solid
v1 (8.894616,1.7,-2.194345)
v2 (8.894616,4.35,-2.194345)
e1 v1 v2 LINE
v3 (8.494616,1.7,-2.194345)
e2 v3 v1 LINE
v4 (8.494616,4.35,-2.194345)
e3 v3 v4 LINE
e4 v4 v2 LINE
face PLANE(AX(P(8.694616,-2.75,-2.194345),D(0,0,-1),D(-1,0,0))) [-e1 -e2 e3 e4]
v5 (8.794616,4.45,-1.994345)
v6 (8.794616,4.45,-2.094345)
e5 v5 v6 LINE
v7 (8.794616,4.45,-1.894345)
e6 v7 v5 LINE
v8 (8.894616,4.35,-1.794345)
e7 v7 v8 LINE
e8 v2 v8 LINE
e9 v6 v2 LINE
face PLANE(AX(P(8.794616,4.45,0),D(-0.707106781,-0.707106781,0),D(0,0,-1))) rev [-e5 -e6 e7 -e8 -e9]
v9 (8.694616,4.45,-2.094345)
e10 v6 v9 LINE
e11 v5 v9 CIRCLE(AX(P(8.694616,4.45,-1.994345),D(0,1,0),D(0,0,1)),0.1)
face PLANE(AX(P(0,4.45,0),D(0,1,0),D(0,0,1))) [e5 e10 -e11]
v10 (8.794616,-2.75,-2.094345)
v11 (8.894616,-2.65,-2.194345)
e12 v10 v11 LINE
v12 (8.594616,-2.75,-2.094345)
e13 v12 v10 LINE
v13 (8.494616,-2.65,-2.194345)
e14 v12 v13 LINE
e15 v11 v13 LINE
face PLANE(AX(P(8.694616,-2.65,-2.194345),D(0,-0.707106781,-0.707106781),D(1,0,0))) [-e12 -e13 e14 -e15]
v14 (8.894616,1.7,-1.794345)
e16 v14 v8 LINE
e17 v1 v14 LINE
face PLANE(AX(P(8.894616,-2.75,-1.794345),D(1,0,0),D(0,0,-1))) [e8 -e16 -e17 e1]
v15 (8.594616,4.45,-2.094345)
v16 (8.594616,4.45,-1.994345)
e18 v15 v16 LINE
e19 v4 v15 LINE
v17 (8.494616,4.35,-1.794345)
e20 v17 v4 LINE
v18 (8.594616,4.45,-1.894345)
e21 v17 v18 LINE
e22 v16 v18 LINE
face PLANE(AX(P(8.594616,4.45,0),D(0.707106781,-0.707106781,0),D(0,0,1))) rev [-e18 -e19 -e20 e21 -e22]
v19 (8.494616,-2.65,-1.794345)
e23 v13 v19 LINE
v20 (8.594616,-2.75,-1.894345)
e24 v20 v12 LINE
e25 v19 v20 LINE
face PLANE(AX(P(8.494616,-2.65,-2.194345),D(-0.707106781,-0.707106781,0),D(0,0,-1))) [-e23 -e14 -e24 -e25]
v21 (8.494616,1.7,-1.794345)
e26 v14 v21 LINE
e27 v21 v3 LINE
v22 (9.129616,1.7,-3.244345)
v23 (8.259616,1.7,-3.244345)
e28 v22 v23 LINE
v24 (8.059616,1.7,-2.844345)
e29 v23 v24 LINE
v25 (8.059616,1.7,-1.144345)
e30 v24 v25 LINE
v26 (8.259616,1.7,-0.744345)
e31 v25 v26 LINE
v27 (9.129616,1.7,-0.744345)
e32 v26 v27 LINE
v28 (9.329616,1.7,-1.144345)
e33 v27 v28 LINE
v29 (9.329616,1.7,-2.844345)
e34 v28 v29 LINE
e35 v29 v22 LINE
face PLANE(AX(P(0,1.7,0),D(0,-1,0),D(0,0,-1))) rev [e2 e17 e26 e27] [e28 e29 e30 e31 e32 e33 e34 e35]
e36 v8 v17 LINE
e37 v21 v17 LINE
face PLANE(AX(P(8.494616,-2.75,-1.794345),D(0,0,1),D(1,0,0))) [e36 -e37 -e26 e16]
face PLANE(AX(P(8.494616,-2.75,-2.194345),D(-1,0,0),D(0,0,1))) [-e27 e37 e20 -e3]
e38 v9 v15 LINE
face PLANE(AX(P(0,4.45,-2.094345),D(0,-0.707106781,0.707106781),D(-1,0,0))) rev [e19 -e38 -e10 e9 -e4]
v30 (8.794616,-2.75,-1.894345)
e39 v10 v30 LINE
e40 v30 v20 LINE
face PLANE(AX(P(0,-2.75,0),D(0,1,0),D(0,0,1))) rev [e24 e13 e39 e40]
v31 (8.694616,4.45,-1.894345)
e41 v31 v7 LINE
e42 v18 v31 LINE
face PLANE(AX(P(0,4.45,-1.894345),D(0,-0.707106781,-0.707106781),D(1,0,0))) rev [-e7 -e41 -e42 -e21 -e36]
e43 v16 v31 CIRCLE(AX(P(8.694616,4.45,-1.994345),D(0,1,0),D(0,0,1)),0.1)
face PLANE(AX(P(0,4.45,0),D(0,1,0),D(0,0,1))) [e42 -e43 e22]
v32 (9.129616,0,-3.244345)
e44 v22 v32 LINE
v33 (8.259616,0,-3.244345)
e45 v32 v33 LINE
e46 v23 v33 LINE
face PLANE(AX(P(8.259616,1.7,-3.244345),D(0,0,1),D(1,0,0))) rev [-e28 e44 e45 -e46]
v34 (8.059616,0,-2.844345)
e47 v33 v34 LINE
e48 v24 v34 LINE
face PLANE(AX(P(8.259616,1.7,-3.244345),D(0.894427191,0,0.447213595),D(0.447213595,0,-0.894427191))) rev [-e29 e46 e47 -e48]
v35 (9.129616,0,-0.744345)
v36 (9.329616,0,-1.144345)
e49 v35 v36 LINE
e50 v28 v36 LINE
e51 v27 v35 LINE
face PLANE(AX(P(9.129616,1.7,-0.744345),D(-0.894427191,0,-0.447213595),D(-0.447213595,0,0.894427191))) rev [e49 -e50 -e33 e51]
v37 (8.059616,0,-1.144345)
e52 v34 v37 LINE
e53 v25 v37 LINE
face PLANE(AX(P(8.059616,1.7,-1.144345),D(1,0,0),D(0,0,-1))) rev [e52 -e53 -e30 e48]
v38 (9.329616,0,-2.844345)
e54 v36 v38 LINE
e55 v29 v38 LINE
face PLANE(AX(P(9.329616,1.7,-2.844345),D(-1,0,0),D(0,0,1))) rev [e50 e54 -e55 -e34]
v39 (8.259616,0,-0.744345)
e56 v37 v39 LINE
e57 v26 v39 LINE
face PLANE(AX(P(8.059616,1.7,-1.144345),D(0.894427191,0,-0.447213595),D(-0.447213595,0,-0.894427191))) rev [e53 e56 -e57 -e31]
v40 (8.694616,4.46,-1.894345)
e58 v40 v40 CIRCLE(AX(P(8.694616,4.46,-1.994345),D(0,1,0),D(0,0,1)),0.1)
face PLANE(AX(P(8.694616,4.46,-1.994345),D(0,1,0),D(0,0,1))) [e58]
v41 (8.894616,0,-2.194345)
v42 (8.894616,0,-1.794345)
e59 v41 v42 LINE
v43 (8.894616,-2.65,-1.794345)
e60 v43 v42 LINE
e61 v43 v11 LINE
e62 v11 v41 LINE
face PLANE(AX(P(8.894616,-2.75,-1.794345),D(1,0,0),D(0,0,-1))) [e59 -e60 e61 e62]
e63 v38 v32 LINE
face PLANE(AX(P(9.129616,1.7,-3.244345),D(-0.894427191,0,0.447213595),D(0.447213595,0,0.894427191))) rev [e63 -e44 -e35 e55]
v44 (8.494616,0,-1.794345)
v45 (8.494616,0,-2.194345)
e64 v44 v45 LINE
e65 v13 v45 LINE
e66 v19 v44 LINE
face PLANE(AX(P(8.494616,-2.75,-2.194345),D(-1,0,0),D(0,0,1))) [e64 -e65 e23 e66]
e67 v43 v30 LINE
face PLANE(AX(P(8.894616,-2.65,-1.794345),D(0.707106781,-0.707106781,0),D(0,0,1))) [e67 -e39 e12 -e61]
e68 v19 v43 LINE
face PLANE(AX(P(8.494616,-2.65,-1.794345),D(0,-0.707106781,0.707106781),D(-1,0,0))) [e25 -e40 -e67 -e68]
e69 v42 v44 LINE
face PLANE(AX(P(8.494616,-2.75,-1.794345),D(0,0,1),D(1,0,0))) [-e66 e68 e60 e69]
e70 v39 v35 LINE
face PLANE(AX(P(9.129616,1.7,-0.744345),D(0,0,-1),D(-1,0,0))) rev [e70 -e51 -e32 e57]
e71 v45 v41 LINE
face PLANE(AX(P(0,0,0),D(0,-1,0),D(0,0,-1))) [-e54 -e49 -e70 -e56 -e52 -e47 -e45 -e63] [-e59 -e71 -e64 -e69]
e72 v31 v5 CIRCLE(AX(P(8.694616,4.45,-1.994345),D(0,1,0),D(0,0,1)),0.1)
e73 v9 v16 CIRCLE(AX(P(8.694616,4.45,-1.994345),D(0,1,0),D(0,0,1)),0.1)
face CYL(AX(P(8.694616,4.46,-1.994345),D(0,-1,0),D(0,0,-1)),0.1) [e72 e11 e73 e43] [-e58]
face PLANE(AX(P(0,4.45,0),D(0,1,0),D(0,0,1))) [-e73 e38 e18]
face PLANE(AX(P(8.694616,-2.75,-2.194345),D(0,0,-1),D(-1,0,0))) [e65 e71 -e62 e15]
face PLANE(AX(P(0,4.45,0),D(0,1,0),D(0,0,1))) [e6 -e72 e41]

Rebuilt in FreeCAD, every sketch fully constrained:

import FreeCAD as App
import Part
import Sketcher
Q = App.Units.Quantity


def edges_at(feature, points):
    """Names of the edges that pass closest to the given points."""
    edges = feature.Shape.Edges
    near = lambda p: min(range(len(edges)), key=lambda i: edges[i].distToShape(Part.Vertex(*p))[0])
    return sorted({f"Edge{near(p) + 1}" for p in points})

doc = App.newDocument("Part")
params = doc.addObject("Spreadsheet::Sheet", "Params")
for row, (alias, value) in enumerate([
    ("sketch1_height", "1.7 mm"),
    ("sketch1_width", "0.87 mm"),
    ("pad1_length", "1.7 mm"),
    ("sketch2_width", "0.4 mm"),
    ("pad2_length", "2.75 mm"),
    ("pad2_length2", "4.45 mm"),
    ("chamfer_size", "0.1 mm"),
    ("chamfer2_size", "0.1 mm"),
    ("sketch3_diameter", "0.2 mm"),
    ("pad3_length", "0.01 mm"),
], start=1):
    params.set(f"A{row}", alias)
    params.set(f"B{row}", "=" + value)
    params.setAlias(f"B{row}", alias)

body = doc.addObject("PartDesign::Body", "Body")

# Sketch on XZ plane
sketch1 = doc.addObject("Sketcher::SketchObject", "Sketch")
body.addObject(sketch1)
sketch1.AttachmentSupport = (doc.XZ_Plane, [""])
sketch1.MapMode = "FlatFace"
sketch1.addGeometry([
    Part.LineSegment(App.Vector(8.06, -2.84, 0), App.Vector(8.06, -1.14, 0)),  # 0
    Part.LineSegment(App.Vector(8.06, -1.14, 0), App.Vector(8.26, -0.74, 0)),  # 1
    Part.LineSegment(App.Vector(8.26, -0.74, 0), App.Vector(9.13, -0.74, 0)),  # 2
    Part.LineSegment(App.Vector(9.13, -0.74, 0), App.Vector(9.33, -1.14, 0)),  # 3
    Part.LineSegment(App.Vector(9.33, -1.14, 0), App.Vector(9.33, -2.84, 0)),  # 4
    Part.LineSegment(App.Vector(9.33, -2.84, 0), App.Vector(9.13, -3.24, 0)),  # 5
    Part.LineSegment(App.Vector(9.13, -3.24, 0), App.Vector(8.26, -3.24, 0)),  # 6
    Part.LineSegment(App.Vector(8.26, -3.24, 0), App.Vector(8.06, -2.84, 0)),  # 7
], False)
sketch1.addConstraint([
    Sketcher.Constraint("Coincident", 0, 2, 1, 1),
    Sketcher.Constraint("Coincident", 1, 2, 2, 1),
    Sketcher.Constraint("Coincident", 2, 2, 3, 1),
    Sketcher.Constraint("Coincident", 3, 2, 4, 1),
    Sketcher.Constraint("Coincident", 4, 2, 5, 1),
    Sketcher.Constraint("Coincident", 5, 2, 6, 1),
    Sketcher.Constraint("Coincident", 6, 2, 7, 1),
    Sketcher.Constraint("Coincident", 7, 2, 0, 1),
    Sketcher.Constraint("Vertical", 0),
    Sketcher.Constraint("Horizontal", 2),
    Sketcher.Constraint("Vertical", 4),
    Sketcher.Constraint("Horizontal", 6),
    Sketcher.Constraint("Parallel", 1, 5),
    Sketcher.Constraint("Parallel", 3, 7),
    Sketcher.Constraint("Horizontal", 0, 2, 3, 2),
    Sketcher.Constraint("Horizontal", 4, 2, 7, 2),
    Sketcher.Constraint("Vertical", 2, 2, 5, 2),
    Sketcher.Constraint("Vertical", 1, 2, 6, 2),
    Sketcher.Constraint("DistanceY", 0, 1, 0, 2, Q("1.7 mm")),
    Sketcher.Constraint("DistanceX", 2, 1, 2, 2, Q("0.87 mm")),
    Sketcher.Constraint("DistanceX", 0, 2, 1, 2, Q("0.2 mm")),
    Sketcher.Constraint("DistanceY", 0, 2, 1, 2, Q("0.4 mm")),
    Sketcher.Constraint("DistanceX", -1, 1, 0, 2, Q("8.059616 mm")),
    Sketcher.Constraint("DistanceY", 0, 2, -1, 1, Q("1.144345 mm")),
])
sketch1.setExpression("Constraints[18]", "Params.sketch1_height")
sketch1.setExpression("Constraints[19]", "Params.sketch1_width")
pad1 = doc.addObject("PartDesign::Pad", "Pad")
body.addObject(pad1)
pad1.Profile = sketch1
pad1.setExpression("Length", "Params.pad1_length")
pad1.Reversed = True

# Sketch on XZ plane
sketch2 = doc.addObject("Sketcher::SketchObject", "Sketch001")
body.addObject(sketch2)
sketch2.AttachmentSupport = (doc.XZ_Plane, [""])
sketch2.MapMode = "FlatFace"
sketch2.AttachmentOffset = App.Placement(App.Vector(0, 0, -1.7), App.Rotation())
sketch2.addGeometry([
    Part.LineSegment(App.Vector(8.49, -2.19, 0), App.Vector(8.49, -1.79, 0)),
    Part.LineSegment(App.Vector(8.49, -1.79, 0), App.Vector(8.89, -1.79, 0)),
    Part.LineSegment(App.Vector(8.89, -1.79, 0), App.Vector(8.89, -2.19, 0)),
    Part.LineSegment(App.Vector(8.89, -2.19, 0), App.Vector(8.49, -2.19, 0)),
], False)
sketch2.addConstraint([
    Sketcher.Constraint("Coincident", 0, 2, 1, 1),
    Sketcher.Constraint("Coincident", 1, 2, 2, 1),
    Sketcher.Constraint("Coincident", 2, 2, 3, 1),
    Sketcher.Constraint("Coincident", 3, 2, 0, 1),
    Sketcher.Constraint("Vertical", 0),
    Sketcher.Constraint("Horizontal", 1),
    Sketcher.Constraint("Vertical", 2),
    Sketcher.Constraint("Horizontal", 3),
    Sketcher.Constraint("Equal", 3, 0),
    Sketcher.Constraint("DistanceX", 1, 1, 1, 2, Q("0.4 mm")),
    Sketcher.Constraint("DistanceX", -1, 1, 0, 2, Q("8.494616 mm")),
    Sketcher.Constraint("DistanceY", 0, 2, -1, 1, Q("1.794345 mm")),
])
sketch2.setExpression("Constraints[9]", "Params.sketch2_width")
pad2 = doc.addObject("PartDesign::Pad", "Pad001")
body.addObject(pad2)
pad2.Profile = sketch2
pad2.Type = "TwoLengths"
pad2.setExpression("Length", "Params.pad2_length")
pad2.setExpression("Length2", "Params.pad2_length2")
pad2.Reversed = True
doc.recompute()

chamfer = doc.addObject("PartDesign::Chamfer", "Chamfer")
body.addObject(chamfer)
chamfer.Base = (pad2, edges_at(pad2, [
    (8.695, 4.45, -2.194),
    (8.495, 4.45, -1.994),
    (8.695, 4.45, -1.794),
    (8.895, 4.45, -1.994),
]))
chamfer.setExpression("Size", "Params.chamfer_size")
doc.recompute()

chamfer2 = doc.addObject("PartDesign::Chamfer", "Chamfer001")
body.addObject(chamfer2)
chamfer2.Base = (chamfer, edges_at(chamfer, [
    (8.895, -2.75, -1.994),
    (8.695, -2.75, -1.794),
    (8.495, -2.75, -1.994),
    (8.695, -2.75, -2.194),
]))
chamfer2.setExpression("Size", "Params.chamfer2_size")

# Sketch on XZ plane
sketch3 = doc.addObject("Sketcher::SketchObject", "Sketch002")
body.addObject(sketch3)
sketch3.AttachmentSupport = (doc.XZ_Plane, [""])
sketch3.MapMode = "FlatFace"
sketch3.AttachmentOffset = App.Placement(App.Vector(0, 0, -4.45), App.Rotation())
sketch3.addGeometry(Part.Circle(App.Vector(8.69, -1.99, 0), App.Vector(0, 0, 1), 0.1), False)
sketch3.addConstraint([
    Sketcher.Constraint("Diameter", 0, Q("0.2 mm")),
    Sketcher.Constraint("DistanceX", -1, 1, 0, 3, Q("8.694616 mm")),
    Sketcher.Constraint("DistanceY", 0, 3, -1, 1, Q("1.994345 mm")),
])
sketch3.setExpression("Constraints[0]", "Params.sketch3_diameter")
pad3 = doc.addObject("PartDesign::Pad", "Pad002")
body.addObject(pad3)
pad3.Profile = sketch3
pad3.setExpression("Length", "Params.pad3_length")
pad3.Reversed = True

doc.recompute()
